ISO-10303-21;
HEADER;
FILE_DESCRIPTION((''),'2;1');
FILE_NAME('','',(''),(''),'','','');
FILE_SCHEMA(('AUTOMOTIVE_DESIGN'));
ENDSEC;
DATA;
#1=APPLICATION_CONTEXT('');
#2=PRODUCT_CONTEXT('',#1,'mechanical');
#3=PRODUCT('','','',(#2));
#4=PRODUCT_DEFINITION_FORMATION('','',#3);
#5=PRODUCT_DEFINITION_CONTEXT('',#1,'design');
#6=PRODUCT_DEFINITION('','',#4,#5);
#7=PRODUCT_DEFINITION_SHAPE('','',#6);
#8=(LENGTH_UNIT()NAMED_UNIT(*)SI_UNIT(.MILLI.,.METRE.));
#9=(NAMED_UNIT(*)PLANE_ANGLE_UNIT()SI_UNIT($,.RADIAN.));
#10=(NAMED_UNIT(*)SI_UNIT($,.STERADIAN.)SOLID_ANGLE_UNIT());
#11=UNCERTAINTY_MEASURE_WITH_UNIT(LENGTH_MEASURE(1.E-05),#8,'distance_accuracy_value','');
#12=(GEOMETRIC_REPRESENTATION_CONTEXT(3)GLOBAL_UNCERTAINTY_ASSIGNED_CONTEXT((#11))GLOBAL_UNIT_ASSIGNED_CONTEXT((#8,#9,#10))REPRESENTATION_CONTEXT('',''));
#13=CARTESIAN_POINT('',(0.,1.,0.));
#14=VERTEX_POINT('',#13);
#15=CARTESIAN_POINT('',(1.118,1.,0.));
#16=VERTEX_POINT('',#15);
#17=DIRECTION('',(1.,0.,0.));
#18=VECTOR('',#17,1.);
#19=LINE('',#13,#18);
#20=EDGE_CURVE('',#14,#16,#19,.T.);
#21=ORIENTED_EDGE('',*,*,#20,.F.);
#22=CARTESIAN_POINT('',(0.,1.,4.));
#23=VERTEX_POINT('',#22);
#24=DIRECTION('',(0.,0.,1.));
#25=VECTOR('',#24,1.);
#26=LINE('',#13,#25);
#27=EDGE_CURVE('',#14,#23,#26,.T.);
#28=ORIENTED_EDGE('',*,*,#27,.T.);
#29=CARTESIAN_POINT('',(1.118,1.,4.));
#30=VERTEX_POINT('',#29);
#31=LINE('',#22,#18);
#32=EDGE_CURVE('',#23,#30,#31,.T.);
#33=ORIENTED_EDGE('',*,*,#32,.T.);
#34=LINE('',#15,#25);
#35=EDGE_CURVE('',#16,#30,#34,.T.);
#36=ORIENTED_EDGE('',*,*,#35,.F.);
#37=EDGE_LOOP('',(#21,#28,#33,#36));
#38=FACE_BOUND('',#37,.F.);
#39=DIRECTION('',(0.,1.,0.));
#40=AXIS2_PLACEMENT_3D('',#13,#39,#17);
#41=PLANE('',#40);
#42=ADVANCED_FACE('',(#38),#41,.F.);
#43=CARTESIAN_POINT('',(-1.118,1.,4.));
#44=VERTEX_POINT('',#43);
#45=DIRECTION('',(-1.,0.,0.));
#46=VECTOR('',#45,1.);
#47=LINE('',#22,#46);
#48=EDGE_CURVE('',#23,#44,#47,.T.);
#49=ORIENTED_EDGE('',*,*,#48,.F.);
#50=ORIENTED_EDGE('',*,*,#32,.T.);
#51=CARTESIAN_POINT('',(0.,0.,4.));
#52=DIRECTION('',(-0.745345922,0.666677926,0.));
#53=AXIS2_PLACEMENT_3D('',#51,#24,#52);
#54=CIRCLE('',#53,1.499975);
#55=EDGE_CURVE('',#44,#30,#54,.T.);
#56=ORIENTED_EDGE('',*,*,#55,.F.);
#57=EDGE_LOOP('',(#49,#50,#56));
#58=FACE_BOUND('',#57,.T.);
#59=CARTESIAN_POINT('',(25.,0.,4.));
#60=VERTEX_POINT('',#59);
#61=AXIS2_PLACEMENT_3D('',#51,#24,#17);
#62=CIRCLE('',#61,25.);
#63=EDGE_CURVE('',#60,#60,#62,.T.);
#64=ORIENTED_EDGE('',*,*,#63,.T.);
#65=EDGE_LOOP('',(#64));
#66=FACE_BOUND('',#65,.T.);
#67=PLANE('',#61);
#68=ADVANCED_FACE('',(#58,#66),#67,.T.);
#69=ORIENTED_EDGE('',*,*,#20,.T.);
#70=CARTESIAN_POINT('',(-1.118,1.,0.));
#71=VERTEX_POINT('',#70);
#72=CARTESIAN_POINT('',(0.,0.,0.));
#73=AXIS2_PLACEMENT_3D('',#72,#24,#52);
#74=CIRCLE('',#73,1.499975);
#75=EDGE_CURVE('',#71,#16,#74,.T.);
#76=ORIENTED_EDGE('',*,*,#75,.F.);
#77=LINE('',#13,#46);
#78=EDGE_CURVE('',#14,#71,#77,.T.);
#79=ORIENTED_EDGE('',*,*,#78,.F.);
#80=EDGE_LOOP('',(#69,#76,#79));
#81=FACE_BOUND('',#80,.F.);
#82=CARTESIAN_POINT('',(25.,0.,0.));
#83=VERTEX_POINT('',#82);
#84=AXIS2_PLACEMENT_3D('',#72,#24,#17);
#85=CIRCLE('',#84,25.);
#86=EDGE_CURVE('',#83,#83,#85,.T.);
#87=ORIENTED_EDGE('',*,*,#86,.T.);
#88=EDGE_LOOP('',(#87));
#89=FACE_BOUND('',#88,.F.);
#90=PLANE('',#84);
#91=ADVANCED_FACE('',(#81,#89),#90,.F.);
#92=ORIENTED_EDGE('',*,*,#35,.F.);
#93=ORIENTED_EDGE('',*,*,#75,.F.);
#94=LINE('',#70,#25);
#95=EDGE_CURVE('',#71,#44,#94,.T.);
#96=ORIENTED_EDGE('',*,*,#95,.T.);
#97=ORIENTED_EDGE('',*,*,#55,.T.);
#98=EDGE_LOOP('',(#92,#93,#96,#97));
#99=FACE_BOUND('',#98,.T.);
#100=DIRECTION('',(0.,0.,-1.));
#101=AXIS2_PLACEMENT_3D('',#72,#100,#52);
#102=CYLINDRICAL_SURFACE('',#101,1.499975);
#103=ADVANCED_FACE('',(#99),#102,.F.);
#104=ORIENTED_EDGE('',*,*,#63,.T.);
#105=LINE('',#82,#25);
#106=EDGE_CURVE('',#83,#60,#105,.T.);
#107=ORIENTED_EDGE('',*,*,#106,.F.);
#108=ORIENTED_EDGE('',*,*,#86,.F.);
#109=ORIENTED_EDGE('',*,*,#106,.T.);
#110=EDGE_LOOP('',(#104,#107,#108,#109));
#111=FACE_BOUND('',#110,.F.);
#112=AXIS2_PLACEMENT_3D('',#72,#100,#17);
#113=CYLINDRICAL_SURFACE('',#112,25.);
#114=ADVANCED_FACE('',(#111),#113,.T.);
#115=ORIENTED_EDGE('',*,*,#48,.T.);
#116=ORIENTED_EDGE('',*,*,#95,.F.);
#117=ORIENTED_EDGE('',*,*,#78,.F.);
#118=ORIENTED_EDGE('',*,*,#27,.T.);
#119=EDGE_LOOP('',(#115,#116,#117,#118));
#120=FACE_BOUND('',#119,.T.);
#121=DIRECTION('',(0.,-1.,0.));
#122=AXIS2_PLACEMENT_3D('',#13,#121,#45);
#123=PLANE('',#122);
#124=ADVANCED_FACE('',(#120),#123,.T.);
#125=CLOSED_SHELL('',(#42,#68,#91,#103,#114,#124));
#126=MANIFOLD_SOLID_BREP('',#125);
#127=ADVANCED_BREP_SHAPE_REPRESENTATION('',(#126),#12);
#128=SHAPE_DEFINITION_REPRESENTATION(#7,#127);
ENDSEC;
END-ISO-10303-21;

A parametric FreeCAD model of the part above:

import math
import FreeCAD as App
import Part
import Sketcher

V = App.Vector

doc = App.newDocument("Part")
params = doc.addObject("Spreadsheet::Sheet", "Params")
for row, (alias, value) in enumerate([
    ("sketch1_diameter", "50 mm"),
    ("sketch1_radius", "1.5 mm"),
    ("pad1_length", "4 mm"),
], start=1):
    params.set(f"A{row}", alias)
    params.set(f"B{row}", "=" + value)
    params.setAlias(f"B{row}", alias)

body = doc.addObject("PartDesign::Body", "Body")

# Sketch on XY plane
sketch1 = body.newObject("Sketcher::SketchObject", "Sketch")
sketch1.AttachmentSupport = (doc.getObject("XY_Plane"), [""])
sketch1.MapMode = "FlatFace"
sketch1.addGeometry([
    Part.Circle(V(0, 0, 0), V(0, 0, 1), 25),
    Part.ArcOfCircle(Part.Circle(V(0, 0, 0), V(0, 0, 1), 1.5), math.radians(138), math.radians(402)),
    Part.LineSegment(V(-1.1, 1, 0), V(1.1, 1, 0)),
], False)
sketch1.addConstraint([
    Sketcher.Constraint("Coincident", 1, 1, 2, 1),
    Sketcher.Constraint("Coincident", 2, 2, 1, 2),
    Sketcher.Constraint("Horizontal", 2),
    Sketcher.Constraint("Coincident", 0, 3, -1, 1),
    Sketcher.Constraint("Coincident", 1, 3, -1, 1),
    Sketcher.Constraint("Diameter", 0, 50.0),
    Sketcher.Constraint("Radius", 1, 1.5),
    Sketcher.Constraint("DistanceY", -1, 1, 1, 1, 1.0),
])
sketch1.setExpression("Constraints[5]", "Params.sketch1_diameter")
sketch1.setExpression("Constraints[6]", "Params.sketch1_radius")
pad1 = body.newObject("PartDesign::Pad", "Pad")
pad1.Profile = sketch1
pad1.setExpression("Length", "Params.pad1_length")

doc.recompute()
